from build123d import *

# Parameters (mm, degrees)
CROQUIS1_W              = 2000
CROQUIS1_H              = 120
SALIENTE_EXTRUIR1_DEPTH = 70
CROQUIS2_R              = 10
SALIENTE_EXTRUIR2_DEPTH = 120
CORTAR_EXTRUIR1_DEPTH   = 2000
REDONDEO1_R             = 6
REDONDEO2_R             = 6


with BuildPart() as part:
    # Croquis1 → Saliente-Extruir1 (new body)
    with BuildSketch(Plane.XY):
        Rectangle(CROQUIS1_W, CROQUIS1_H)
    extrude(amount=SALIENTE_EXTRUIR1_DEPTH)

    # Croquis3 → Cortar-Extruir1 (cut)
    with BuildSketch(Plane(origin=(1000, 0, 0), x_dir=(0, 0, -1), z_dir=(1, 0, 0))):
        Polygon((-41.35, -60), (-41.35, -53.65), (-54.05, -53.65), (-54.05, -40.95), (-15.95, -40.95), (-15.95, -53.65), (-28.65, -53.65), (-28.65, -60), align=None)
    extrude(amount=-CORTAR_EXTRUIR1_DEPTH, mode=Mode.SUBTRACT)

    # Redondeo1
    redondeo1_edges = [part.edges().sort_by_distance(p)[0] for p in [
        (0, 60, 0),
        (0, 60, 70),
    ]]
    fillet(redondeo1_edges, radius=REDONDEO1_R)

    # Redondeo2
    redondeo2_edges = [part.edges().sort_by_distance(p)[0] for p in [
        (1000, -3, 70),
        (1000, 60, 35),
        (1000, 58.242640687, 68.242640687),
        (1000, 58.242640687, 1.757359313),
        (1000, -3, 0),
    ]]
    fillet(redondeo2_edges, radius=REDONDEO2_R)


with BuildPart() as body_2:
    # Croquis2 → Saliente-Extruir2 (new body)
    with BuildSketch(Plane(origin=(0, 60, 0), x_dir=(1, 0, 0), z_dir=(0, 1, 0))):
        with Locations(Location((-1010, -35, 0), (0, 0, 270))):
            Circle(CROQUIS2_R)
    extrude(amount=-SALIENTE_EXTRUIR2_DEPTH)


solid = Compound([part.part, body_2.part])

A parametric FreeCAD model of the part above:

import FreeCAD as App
import Part
import Sketcher


def edges_at(feature, points):
    """Names of the edges that pass closest to the given points."""
    edges = feature.Shape.Edges
    near = lambda p: min(range(len(edges)), key=lambda i: edges[i].distToShape(Part.Vertex(*p))[0])
    return sorted({f"Edge{near(p) + 1}" for p in points})

doc = App.newDocument("Part")
body = doc.addObject("PartDesign::Body", "Body")

# Sketch on XY plane
sketch1 = body.newObject("Sketcher::SketchObject", "Sketch")
sketch1.AttachmentSupport = (doc.getObject("XY_Plane"), [""])
sketch1.MapMode = "FlatFace"
sketch1.addGeometry([
    Part.LineSegment(App.Vector(-1000, 60, 0), App.Vector(-1000, -60, 0)),
    Part.LineSegment(App.Vector(-1000, -60, 0), App.Vector(1000, -60, 0)),
    Part.LineSegment(App.Vector(1000, -60, 0), App.Vector(1000, 60, 0)),
    Part.LineSegment(App.Vector(1000, 60, 0), App.Vector(-1000, 60, 0)),
], False)
sketch1.addConstraint([
    Sketcher.Constraint("Coincident", 0, 2, 1, 1),
    Sketcher.Constraint("Coincident", 1, 2, 2, 1),
    Sketcher.Constraint("Coincident", 2, 2, 3, 1),
    Sketcher.Constraint("Coincident", 3, 2, 0, 1),
    Sketcher.Constraint("Vertical", 0),
    Sketcher.Constraint("Horizontal", 1),
    Sketcher.Constraint("Vertical", 2),
    Sketcher.Constraint("Horizontal", 3),
    Sketcher.Constraint("Symmetric", 0, 2, 2, 2, -1, 1),
    Sketcher.Constraint("DistanceX", 1, 1, 1, 2, 2000.0),
    Sketcher.Constraint("DistanceY", 0, 2, 0, 1, 120.0),
])
pad1 = body.newObject("PartDesign::Pad", "Pad")
pad1.Profile = sketch1
pad1.Length = 70

# Sketch on YZ plane
sketch2 = body.newObject("Sketcher::SketchObject", "Sketch001")
sketch2.AttachmentSupport = (doc.getObject("YZ_Plane"), [""])
sketch2.MapMode = "FlatFace"
sketch2.AttachmentOffset = App.Placement(App.Vector(0, 0, 1000), App.Rotation())
sketch2.addGeometry([
    Part.LineSegment(App.Vector(-54, 41, 0), App.Vector(-60, 41, 0)),  # 0
    Part.LineSegment(App.Vector(-60, 41, 0), App.Vector(-60, 29, 0)),  # 1
    Part.LineSegment(App.Vector(-60, 29, 0), App.Vector(-54, 29, 0)),  # 2
    Part.LineSegment(App.Vector(-54, 29, 0), App.Vector(-54, 16, 0)),  # 3
    Part.LineSegment(App.Vector(-54, 16, 0), App.Vector(-41, 16, 0)),  # 4
    Part.LineSegment(App.Vector(-41, 16, 0), App.Vector(-41, 54, 0)),  # 5
    Part.LineSegment(App.Vector(-41, 54, 0), App.Vector(-54, 54, 0)),  # 6
    Part.LineSegment(App.Vector(-54, 54, 0), App.Vector(-54, 41, 0)),  # 7
], False)
sketch2.addConstraint([
    Sketcher.Constraint("Coincident", 0, 2, 1, 1),
    Sketcher.Constraint("Coincident", 1, 2, 2, 1),
    Sketcher.Constraint("Coincident", 2, 2, 3, 1),
    Sketcher.Constraint("Coincident", 3, 2, 4, 1),
    Sketcher.Constraint("Coincident", 4, 2, 5, 1),
    Sketcher.Constraint("Coincident", 5, 2, 6, 1),
    Sketcher.Constraint("Coincident", 6, 2, 7, 1),
    Sketcher.Constraint("Coincident", 7, 2, 0, 1),
    Sketcher.Constraint("Horizontal", 0),
    Sketcher.Constraint("Vertical", 1),
    Sketcher.Constraint("Horizontal", 2),
    Sketcher.Constraint("Vertical", 3),
    Sketcher.Constraint("Horizontal", 4),
    Sketcher.Constraint("Vertical", 5),
    Sketcher.Constraint("Horizontal", 6),
    Sketcher.Constraint("Vertical", 7),
    Sketcher.Constraint("Vertical", 3, 2, 6, 2),
    Sketcher.Constraint("Equal", 6, 1),
    Sketcher.Constraint("Equal", 1, 3),
    Sketcher.Constraint("Equal", 3, 7),
    Sketcher.Constraint("DistanceX", 4, 1, 4, 2, 12.7),
    Sketcher.Constraint("DistanceX", 0, 2, -1, 1, 60.0),
    Sketcher.Constraint("DistanceX", 0, 2, 0, 1, 6.35),
    Sketcher.Constraint("DistanceY", -1, 1, 0, 2, 41.35),
])
pocket1 = body.newObject("PartDesign::Pocket", "Pocket")
pocket1.Profile = sketch2
pocket1.Length = 2000
doc.recompute()

fillet = body.newObject("PartDesign::Fillet", "Fillet")
fillet.Base = (pocket1, edges_at(pocket1, [(0, 60, 0), (0, 60, 70)]))
fillet.Radius = 6
doc.recompute()

fillet2 = body.newObject("PartDesign::Fillet", "Fillet001")
fillet2.Base = (fillet, edges_at(fillet, [
    (1000, -3, 70),
    (1000, 60, 35),
    (1000, 58.243, 68.243),
    (1000, 58.243, 1.757),
    (1000, -3, 0),
]))
fillet2.Radius = 6
body2 = doc.addObject("PartDesign::Body", "Body001")

# Sketch on XZ plane
sketch3 = body2.newObject("Sketcher::SketchObject", "Sketch002")
sketch3.AttachmentSupport = (doc.getObject("XZ_Plane001"), [""])
sketch3.MapMode = "FlatFace"
sketch3.AttachmentOffset = App.Placement(App.Vector(0, 0, -60), App.Rotation())
sketch3.addGeometry(Part.Circle(App.Vector(-1010, 35, 0), App.Vector(0, 0, 1), 10), False)
sketch3.addConstraint([
    Sketcher.Constraint("Diameter", 0, 20.0),
    Sketcher.Constraint("DistanceX", 0, 3, -1, 1, 1010.0),
    Sketcher.Constraint("DistanceY", -1, 1, 0, 3, 35.0),
])
pad2 = body2.newObject("PartDesign::Pad", "Pad001")
pad2.Profile = sketch3
pad2.Length = 120

doc.recompute()
